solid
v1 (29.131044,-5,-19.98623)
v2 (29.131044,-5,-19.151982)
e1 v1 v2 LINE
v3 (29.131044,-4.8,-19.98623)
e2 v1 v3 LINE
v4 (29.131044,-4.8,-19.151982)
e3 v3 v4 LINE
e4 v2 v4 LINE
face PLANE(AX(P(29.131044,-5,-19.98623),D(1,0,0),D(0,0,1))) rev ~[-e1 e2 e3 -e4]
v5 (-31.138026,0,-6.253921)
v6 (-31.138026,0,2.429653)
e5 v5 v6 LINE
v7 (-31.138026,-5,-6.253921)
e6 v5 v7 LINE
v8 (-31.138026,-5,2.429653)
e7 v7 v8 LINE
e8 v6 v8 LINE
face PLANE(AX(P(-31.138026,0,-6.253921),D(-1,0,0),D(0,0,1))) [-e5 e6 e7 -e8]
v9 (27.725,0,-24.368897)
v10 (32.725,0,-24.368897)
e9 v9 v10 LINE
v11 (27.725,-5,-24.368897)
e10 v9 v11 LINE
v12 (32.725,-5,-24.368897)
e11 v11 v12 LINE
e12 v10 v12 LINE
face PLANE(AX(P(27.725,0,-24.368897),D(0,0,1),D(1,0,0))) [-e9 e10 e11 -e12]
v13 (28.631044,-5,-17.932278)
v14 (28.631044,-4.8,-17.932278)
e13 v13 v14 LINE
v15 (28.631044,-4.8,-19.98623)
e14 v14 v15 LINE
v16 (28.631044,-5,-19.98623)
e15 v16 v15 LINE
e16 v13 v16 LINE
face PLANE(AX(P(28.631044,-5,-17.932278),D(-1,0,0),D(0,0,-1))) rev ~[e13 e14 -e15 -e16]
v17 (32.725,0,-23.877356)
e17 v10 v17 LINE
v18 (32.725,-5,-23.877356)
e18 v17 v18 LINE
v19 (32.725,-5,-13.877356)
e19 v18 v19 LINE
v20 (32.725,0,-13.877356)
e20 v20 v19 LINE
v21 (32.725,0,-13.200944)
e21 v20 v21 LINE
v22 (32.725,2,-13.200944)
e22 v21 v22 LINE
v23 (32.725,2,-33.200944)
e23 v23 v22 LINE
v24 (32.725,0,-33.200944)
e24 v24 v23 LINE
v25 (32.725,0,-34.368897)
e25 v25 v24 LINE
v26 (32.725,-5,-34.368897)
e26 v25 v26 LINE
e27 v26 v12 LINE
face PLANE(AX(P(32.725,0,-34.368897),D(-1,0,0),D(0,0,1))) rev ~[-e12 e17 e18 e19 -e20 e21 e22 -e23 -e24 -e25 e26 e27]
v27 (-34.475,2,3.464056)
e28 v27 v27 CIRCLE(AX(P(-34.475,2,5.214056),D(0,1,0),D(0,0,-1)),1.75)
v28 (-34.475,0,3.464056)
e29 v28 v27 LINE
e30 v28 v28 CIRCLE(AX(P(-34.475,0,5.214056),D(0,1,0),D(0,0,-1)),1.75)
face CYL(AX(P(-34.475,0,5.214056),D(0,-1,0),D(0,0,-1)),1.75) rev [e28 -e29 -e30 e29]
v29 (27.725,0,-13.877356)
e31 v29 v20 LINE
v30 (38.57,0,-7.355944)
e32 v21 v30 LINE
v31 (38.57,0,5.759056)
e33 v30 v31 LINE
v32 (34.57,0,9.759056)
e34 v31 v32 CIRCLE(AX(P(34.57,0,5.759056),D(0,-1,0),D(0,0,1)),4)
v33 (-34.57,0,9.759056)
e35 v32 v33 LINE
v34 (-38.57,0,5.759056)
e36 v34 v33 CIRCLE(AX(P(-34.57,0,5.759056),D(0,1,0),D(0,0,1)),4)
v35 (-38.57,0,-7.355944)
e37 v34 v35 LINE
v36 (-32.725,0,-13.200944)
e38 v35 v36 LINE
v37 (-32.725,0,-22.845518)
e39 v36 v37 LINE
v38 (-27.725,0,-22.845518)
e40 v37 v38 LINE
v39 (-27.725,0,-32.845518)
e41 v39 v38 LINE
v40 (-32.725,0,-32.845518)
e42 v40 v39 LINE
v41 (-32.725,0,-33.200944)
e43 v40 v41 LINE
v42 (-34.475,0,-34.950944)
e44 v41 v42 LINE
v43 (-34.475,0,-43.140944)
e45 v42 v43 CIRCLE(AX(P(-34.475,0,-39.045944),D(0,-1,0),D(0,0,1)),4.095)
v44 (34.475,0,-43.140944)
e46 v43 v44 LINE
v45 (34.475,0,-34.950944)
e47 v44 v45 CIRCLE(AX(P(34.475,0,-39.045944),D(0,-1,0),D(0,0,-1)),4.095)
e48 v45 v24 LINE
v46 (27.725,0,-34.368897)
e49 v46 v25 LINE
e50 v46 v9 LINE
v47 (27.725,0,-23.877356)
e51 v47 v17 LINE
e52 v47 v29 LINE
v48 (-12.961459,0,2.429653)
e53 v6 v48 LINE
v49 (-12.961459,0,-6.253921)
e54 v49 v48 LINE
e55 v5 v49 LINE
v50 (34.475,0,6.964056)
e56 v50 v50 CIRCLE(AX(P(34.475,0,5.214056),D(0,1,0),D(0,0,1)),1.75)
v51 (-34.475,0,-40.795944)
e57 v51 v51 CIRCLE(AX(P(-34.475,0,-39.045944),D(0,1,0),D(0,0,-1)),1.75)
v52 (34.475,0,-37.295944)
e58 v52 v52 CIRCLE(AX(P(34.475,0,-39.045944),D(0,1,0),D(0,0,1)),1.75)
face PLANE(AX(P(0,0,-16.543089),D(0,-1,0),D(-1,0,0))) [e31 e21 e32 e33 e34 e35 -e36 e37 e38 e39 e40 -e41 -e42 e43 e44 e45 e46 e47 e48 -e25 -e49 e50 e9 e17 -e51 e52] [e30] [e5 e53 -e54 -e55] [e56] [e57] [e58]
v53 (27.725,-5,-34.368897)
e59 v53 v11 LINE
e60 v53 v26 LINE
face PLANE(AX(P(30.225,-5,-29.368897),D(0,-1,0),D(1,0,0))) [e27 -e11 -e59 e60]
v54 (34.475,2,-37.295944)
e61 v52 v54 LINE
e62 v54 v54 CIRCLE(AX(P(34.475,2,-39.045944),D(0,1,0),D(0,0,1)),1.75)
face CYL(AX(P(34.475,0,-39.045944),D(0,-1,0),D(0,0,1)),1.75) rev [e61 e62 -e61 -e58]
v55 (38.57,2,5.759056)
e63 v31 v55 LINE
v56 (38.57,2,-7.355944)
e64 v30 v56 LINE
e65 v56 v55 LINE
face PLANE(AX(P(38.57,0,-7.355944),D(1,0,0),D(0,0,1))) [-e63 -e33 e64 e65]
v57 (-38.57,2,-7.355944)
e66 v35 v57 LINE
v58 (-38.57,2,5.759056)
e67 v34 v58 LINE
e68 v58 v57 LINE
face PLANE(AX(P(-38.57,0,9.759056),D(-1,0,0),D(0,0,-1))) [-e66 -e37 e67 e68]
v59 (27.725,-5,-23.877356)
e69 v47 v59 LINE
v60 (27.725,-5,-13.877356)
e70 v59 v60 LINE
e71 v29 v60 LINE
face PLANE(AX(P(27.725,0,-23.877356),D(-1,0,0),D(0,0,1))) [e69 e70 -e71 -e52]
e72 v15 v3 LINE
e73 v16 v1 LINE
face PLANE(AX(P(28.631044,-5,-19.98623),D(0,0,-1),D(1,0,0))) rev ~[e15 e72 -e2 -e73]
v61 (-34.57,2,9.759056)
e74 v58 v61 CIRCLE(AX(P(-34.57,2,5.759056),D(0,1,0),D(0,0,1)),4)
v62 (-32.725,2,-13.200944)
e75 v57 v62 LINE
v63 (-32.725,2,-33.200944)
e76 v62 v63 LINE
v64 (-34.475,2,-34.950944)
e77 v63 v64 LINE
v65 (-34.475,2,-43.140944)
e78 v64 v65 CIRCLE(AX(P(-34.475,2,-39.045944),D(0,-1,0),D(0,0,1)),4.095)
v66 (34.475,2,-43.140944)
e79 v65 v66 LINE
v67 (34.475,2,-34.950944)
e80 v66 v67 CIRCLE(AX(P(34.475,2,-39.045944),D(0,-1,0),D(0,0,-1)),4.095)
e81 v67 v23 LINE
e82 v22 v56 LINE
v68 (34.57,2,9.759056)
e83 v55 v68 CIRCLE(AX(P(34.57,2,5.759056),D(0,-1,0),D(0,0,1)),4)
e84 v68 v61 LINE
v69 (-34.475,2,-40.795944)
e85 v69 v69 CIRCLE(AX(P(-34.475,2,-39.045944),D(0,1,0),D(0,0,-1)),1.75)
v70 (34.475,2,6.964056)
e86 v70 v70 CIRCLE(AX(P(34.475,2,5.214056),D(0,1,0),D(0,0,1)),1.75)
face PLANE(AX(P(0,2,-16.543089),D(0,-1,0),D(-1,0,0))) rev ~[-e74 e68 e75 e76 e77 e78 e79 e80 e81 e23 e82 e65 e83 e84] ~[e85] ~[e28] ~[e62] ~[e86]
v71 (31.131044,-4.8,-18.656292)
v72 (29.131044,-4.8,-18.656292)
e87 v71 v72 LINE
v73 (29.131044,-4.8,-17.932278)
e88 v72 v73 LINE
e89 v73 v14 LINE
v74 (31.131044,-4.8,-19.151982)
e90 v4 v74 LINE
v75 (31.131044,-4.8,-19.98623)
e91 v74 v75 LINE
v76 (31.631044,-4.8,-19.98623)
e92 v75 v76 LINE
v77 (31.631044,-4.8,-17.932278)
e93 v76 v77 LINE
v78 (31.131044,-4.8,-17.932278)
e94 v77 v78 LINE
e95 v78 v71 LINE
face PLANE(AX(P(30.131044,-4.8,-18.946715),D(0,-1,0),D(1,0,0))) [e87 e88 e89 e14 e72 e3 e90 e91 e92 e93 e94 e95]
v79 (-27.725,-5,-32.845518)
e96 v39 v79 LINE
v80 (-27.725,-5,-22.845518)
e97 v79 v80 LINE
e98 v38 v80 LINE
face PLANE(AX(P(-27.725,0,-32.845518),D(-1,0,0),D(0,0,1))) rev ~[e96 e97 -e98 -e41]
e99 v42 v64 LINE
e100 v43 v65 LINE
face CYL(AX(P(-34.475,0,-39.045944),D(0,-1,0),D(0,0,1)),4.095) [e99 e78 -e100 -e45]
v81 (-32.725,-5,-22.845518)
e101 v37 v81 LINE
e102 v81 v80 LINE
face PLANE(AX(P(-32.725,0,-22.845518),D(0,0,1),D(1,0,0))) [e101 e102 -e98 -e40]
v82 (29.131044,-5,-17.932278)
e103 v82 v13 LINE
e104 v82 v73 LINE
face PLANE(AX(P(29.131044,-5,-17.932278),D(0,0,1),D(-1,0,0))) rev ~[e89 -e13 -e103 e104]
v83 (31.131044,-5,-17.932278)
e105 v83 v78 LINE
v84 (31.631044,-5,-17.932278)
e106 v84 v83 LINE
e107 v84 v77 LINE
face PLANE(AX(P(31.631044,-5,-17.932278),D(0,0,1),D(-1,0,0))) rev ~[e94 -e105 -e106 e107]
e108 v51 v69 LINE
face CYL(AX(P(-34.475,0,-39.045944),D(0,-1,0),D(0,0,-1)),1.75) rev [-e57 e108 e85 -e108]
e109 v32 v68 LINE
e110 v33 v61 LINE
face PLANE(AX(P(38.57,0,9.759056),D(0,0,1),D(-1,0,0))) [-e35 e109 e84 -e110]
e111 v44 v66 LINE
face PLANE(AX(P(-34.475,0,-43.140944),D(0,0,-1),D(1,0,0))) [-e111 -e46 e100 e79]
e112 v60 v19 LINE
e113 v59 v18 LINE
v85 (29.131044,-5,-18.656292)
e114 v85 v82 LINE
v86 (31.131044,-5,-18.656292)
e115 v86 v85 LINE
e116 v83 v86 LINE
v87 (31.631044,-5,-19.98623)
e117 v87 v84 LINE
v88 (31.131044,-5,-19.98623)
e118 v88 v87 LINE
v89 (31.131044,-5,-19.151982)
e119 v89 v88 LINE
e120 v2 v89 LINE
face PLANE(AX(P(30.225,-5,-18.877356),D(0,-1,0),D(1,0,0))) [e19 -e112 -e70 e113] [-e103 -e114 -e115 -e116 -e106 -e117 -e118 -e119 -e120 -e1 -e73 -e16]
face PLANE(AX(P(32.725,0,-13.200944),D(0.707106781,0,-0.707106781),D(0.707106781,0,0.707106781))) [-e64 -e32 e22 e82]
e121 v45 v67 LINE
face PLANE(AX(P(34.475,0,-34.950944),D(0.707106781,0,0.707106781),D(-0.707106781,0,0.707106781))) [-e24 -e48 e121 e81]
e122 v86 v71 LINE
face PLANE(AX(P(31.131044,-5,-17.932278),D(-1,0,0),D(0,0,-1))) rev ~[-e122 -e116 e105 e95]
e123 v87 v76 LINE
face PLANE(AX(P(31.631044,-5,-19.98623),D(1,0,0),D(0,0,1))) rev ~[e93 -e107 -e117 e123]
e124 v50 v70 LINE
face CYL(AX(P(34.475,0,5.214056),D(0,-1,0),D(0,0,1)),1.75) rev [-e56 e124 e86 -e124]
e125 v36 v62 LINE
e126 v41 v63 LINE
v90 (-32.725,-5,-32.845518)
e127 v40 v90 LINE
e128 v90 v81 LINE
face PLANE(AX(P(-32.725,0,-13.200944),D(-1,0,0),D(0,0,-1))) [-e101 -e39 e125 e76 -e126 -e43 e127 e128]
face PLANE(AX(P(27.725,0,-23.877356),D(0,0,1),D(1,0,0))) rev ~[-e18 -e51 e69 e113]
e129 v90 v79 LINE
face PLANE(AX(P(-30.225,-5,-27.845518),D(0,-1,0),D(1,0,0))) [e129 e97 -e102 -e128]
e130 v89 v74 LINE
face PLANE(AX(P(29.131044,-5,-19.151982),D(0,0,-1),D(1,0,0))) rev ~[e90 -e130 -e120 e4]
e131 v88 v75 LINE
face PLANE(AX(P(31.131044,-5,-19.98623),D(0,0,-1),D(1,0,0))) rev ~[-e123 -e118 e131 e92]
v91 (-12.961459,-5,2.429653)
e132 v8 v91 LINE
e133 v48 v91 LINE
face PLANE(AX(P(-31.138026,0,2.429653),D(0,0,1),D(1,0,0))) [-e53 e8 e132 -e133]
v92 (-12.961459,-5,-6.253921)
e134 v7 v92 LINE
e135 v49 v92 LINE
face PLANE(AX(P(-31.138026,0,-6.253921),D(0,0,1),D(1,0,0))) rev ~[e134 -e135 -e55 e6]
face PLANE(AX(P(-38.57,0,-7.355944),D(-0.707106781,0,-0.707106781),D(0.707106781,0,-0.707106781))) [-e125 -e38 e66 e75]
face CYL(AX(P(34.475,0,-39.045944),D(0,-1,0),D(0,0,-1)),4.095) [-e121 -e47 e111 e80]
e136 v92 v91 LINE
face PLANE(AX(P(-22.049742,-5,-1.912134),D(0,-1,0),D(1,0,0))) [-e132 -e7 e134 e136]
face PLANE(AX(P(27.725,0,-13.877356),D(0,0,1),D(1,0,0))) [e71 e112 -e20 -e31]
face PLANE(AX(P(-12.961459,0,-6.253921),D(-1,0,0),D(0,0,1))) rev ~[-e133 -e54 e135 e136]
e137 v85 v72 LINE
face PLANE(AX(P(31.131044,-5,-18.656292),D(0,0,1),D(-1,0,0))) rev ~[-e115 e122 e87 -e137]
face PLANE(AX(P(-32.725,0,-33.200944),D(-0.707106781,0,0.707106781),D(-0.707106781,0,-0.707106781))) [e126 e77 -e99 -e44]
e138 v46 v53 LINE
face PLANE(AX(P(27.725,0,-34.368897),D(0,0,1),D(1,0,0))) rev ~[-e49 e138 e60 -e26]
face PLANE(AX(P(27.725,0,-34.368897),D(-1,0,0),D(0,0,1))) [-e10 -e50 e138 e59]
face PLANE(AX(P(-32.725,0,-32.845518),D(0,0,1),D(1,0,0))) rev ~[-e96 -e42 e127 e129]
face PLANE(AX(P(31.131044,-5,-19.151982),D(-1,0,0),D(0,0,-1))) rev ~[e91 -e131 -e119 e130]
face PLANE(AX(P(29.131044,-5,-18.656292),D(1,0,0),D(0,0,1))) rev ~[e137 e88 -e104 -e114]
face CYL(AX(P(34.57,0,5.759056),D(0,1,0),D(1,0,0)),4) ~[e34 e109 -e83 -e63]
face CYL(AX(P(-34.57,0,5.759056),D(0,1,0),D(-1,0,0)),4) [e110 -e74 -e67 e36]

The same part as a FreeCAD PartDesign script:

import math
import FreeCAD as App
import Part
import Sketcher

V = App.Vector


def edges_at(feature, points):
    """Names of the edges that pass closest to the given points."""
    edges = feature.Shape.Edges
    near = lambda p: min(range(len(edges)), key=lambda i: edges[i].distToShape(Part.Vertex(*p))[0])
    return sorted({f"Edge{near(p) + 1}" for p in points})

doc = App.newDocument("Part")
body = doc.addObject("PartDesign::Body", "Body")

# Sketch on XZ plane
sketch1 = body.newObject("Sketcher::SketchObject", "Sketch")
sketch1.AttachmentSupport = (doc.getObject("XZ_Plane"), [""])
sketch1.MapMode = "FlatFace"
sketch1.addGeometry([
    Part.LineSegment(V(34.475, -43.140944, 0), V(-34.475, -43.140944, 0)),  # 0
    Part.ArcOfCircle(Part.Circle(V(-34.475, -39.045944, 0), V(0, 0, 1), 4.095), math.radians(90), math.radians(270)),  # 1
    Part.LineSegment(V(-34.475, -34.950944, 0), V(-32.725, -33.200944, 0)),  # 2
    Part.LineSegment(V(-32.725, -33.200944, 0), V(-32.725, -13.200944, 0)),  # 3
    Part.LineSegment(V(-32.725, -13.200944, 0), V(-38.57, -7.355944, 0)),  # 4
    Part.LineSegment(V(-38.57, -7.355944, 0), V(-38.57, 9.759056, 0)),  # 5
    Part.LineSegment(V(-38.57, 9.759056, 0), V(38.57, 9.759056, 0)),  # 6
    Part.LineSegment(V(38.57, 9.759056, 0), V(38.57, -7.355944, 0)),  # 7
    Part.LineSegment(V(38.57, -7.355944, 0), V(32.725, -13.200944, 0)),  # 8
    Part.LineSegment(V(32.725, -13.200944, 0), V(32.725, -33.200944, 0)),  # 9
    Part.LineSegment(V(32.725, -33.200944, 0), V(34.475, -34.950944, 0)),  # 10
    Part.ArcOfCircle(Part.Circle(V(34.475, -39.045944, 0), V(0, 0, 1), 4.095), math.radians(-90), math.radians(90)),  # 11
    Part.Circle(V(34.475, 5.214056, 0), V(0, 0, 1), 1.75),  # 12
    Part.Circle(V(-34.475, 5.214056, 0), V(0, 0, 1), 1.75),  # 13
    Part.Circle(V(34.475, -39.045944, 0), V(0, 0, 1), 1.75),  # 14
    Part.Circle(V(-34.475, -39.045944, 0), V(0, 0, 1), 1.75),  # 15
], False)
sketch1.addConstraint([
    Sketcher.Constraint("Tangent", 0, 2, 1, 2),
    Sketcher.Constraint("Coincident", 1, 1, 2, 1),
    Sketcher.Constraint("Coincident", 2, 2, 3, 1),
    Sketcher.Constraint("Coincident", 3, 2, 4, 1),
    Sketcher.Constraint("Coincident", 4, 2, 5, 1),
    Sketcher.Constraint("Coincident", 5, 2, 6, 1),
    Sketcher.Constraint("Coincident", 6, 2, 7, 1),
    Sketcher.Constraint("Coincident", 7, 2, 8, 1),
    Sketcher.Constraint("Coincident", 8, 2, 9, 1),
    Sketcher.Constraint("Coincident", 9, 2, 10, 1),
    Sketcher.Constraint("Coincident", 10, 2, 11, 2),
    Sketcher.Constraint("Tangent", 11, 1, 0, 1),
    Sketcher.Constraint("Horizontal", 0),
    Sketcher.Constraint("Vertical", 3),
    Sketcher.Constraint("Vertical", 5),
    Sketcher.Constraint("Horizontal", 6),
    Sketcher.Constraint("Vertical", 7),
    Sketcher.Constraint("Vertical", 9),
    Sketcher.Constraint("Coincident", 14, 3, 11, 3),
    Sketcher.Constraint("Coincident", 15, 3, 1, 3),
    Sketcher.Constraint("Equal", 1, 11),
    Sketcher.Constraint("Equal", 12, 13),
    Sketcher.Constraint("Equal", 13, 14),
    Sketcher.Constraint("Equal", 14, 15),
    Sketcher.Constraint("Symmetric", 12, 3, 13, 3, -2),
    Sketcher.Constraint("Symmetric", 4, 2, 7, 2, -2),
    Sketcher.Constraint("Symmetric", 3, 2, 8, 2, -2),
    Sketcher.Constraint("Perpendicular", 2, 4),
    Sketcher.Constraint("Perpendicular", 4, 8),
    Sketcher.Constraint("Perpendicular", 8, 10),
    Sketcher.Constraint("Horizontal", 2, 2, 9, 2),
    Sketcher.Constraint("Vertical", 11, 3, 12, 3),
    Sketcher.Constraint("Vertical", 1, 3, 13, 3),
    Sketcher.Constraint("Vertical", 0, 2, 1, 1),
    Sketcher.Constraint("Diameter", 12, 3.5),
    Sketcher.Constraint("DistanceY", 3, 1, 3, 2, 20.0),
    Sketcher.Constraint("Radius", 1, 4.095),
    Sketcher.Constraint("DistanceX", 0, 2, 0, 1, 68.95),
    Sketcher.Constraint("DistanceX", 6, 1, 6, 2, 77.14),
    Sketcher.Constraint("DistanceY", 5, 1, 5, 2, 17.115),
    Sketcher.Constraint("DistanceY", 11, 3, 12, 3, 44.26),
    Sketcher.Constraint("DistanceX", 1, 1, 2, 2, 1.75),
    Sketcher.Constraint("DistanceY", 1, 3, -1, 1, 39.045944),
])
pad1 = body.newObject("PartDesign::Pad", "Pad")
pad1.Profile = sketch1
pad1.Length = 2
pad1.Reversed = True
doc.recompute()

fillet = body.newObject("PartDesign::Fillet", "Fillet")
fillet.Base = (pad1, edges_at(pad1, [(38.57, 1, 9.759), (-38.57, 1, 9.759)]))
fillet.Radius = 4

# Sketch on XZ plane
sketch2 = body.newObject("Sketcher::SketchObject", "Sketch001")
sketch2.AttachmentSupport = (doc.getObject("XZ_Plane"), [""])
sketch2.MapMode = "FlatFace"
sketch2.addGeometry([
    Part.LineSegment(V(27.725, -24.368897, 0), V(27.725, -34.368897, 0)),  # 0
    Part.LineSegment(V(27.725, -34.368897, 0), V(32.725, -34.368897, 0)),  # 1
    Part.LineSegment(V(32.725, -34.368897, 0), V(32.725, -24.368897, 0)),  # 2
    Part.LineSegment(V(32.725, -24.368897, 0), V(27.725, -24.368897, 0)),  # 3
    Part.LineSegment(V(-32.725, -22.845518, 0), V(-32.725, -32.845518, 0)),  # 4
    Part.LineSegment(V(-32.725, -32.845518, 0), V(-27.725, -32.845518, 0)),  # 5
    Part.LineSegment(V(-27.725, -32.845518, 0), V(-27.725, -22.845518, 0)),  # 6
    Part.LineSegment(V(-27.725, -22.845518, 0), V(-32.725, -22.845518, 0)),  # 7
    Part.LineSegment(V(27.725, -13.877356, 0), V(27.725, -23.877356, 0)),  # 8
    Part.LineSegment(V(27.725, -23.877356, 0), V(32.725, -23.877356, 0)),  # 9
    Part.LineSegment(V(32.725, -23.877356, 0), V(32.725, -13.877356, 0)),  # 10
    Part.LineSegment(V(32.725, -13.877356, 0), V(27.725, -13.877356, 0)),  # 11
], False)
sketch2.addConstraint([
    Sketcher.Constraint("Coincident", 0, 2, 1, 1),
    Sketcher.Constraint("Coincident", 1, 2, 2, 1),
    Sketcher.Constraint("Coincident", 2, 2, 3, 1),
    Sketcher.Constraint("Coincident", 3, 2, 0, 1),
    Sketcher.Constraint("Coincident", 4, 2, 5, 1),
    Sketcher.Constraint("Coincident", 5, 2, 6, 1),
    Sketcher.Constraint("Coincident", 6, 2, 7, 1),
    Sketcher.Constraint("Coincident", 7, 2, 4, 1),
    Sketcher.Constraint("Coincident", 8, 2, 9, 1),
    Sketcher.Constraint("Coincident", 9, 2, 10, 1),
    Sketcher.Constraint("Coincident", 10, 2, 11, 1),
    Sketcher.Constraint("Coincident", 11, 2, 8, 1),
    Sketcher.Constraint("Vertical", 0),
    Sketcher.Constraint("Horizontal", 1),
    Sketcher.Constraint("Vertical", 2),
    Sketcher.Constraint("Horizontal", 3),
    Sketcher.Constraint("Vertical", 4),
    Sketcher.Constraint("Horizontal", 5),
    Sketcher.Constraint("Vertical", 6),
    Sketcher.Constraint("Horizontal", 7),
    Sketcher.Constraint("Vertical", 8),
    Sketcher.Constraint("Horizontal", 9),
    Sketcher.Constraint("Vertical", 10),
    Sketcher.Constraint("Horizontal", 11),
    Sketcher.Constraint("Vertical", 3, 2, 8, 2),
    Sketcher.Constraint("Vertical", 2, 2, 9, 2),
    Sketcher.Constraint("Equal", 3, 5),
    Sketcher.Constraint("Equal", 2, 4),
    Sketcher.Constraint("Equal", 6, 8),
    Sketcher.Constraint("DistanceX", 1, 1, 1, 2, 5.0),
    Sketcher.Constraint("DistanceY", 0, 2, 0, 1, 10.0),
    Sketcher.Constraint("DistanceX", 4, 2, 0, 2, 60.45),
    Sketcher.Constraint("DistanceX", -1, 1, 0, 2, 27.725),
    Sketcher.Constraint("DistanceY", 4, 2, -1, 1, 32.845518),
    Sketcher.Constraint("DistanceY", 0, 2, 4, 2, 1.523378),
    Sketcher.Constraint("DistanceY", 3, 2, 8, 2, 0.49154),
])
pad2 = body.newObject("PartDesign::Pad", "Pad001")
pad2.Profile = sketch2
pad2.Length = 5

# Sketch on XZ plane
sketch3 = body.newObject("Sketcher::SketchObject", "Sketch002")
sketch3.AttachmentSupport = (doc.getObject("XZ_Plane"), [""])
sketch3.MapMode = "FlatFace"
sketch3.AttachmentOffset = App.Placement(V(0, 0, 5), App.Rotation())
sketch3.addGeometry([
    Part.LineSegment(V(31.631044, -19.98623, 0), V(31.631044, -17.932278, 0)),  # 0
    Part.LineSegment(V(31.631044, -17.932278, 0), V(31.131044, -17.932278, 0)),  # 1
    Part.LineSegment(V(31.131044, -17.932278, 0), V(31.131044, -18.656292, 0)),  # 2
    Part.LineSegment(V(31.131044, -18.656292, 0), V(29.131044, -18.656292, 0)),  # 3
    Part.LineSegment(V(29.131044, -18.656292, 0), V(29.131044, -17.932278, 0)),  # 4
    Part.LineSegment(V(29.131044, -17.932278, 0), V(28.631044, -17.932278, 0)),  # 5
    Part.LineSegment(V(28.631044, -17.932278, 0), V(28.631044, -19.98623, 0)),  # 6
    Part.LineSegment(V(28.631044, -19.98623, 0), V(29.131044, -19.98623, 0)),  # 7
    Part.LineSegment(V(29.131044, -19.98623, 0), V(29.131044, -19.151982, 0)),  # 8
    Part.LineSegment(V(29.131044, -19.151982, 0), V(31.131044, -19.151982, 0)),  # 9
    Part.LineSegment(V(31.131044, -19.151982, 0), V(31.131044, -19.98623, 0)),  # 10
    Part.LineSegment(V(31.131044, -19.98623, 0), V(31.631044, -19.98623, 0)),  # 11
], False)
sketch3.addConstraint([
    Sketcher.Constraint("Coincident", 0, 2, 1, 1),
    Sketcher.Constraint("Coincident", 1, 2, 2, 1),
    Sketcher.Constraint("Coincident", 2, 2, 3, 1),
    Sketcher.Constraint("Coincident", 3, 2, 4, 1),
    Sketcher.Constraint("Coincident", 4, 2, 5, 1),
    Sketcher.Constraint("Coincident", 5, 2, 6, 1),
    Sketcher.Constraint("Coincident", 6, 2, 7, 1),
    Sketcher.Constraint("Coincident", 7, 2, 8, 1),
    Sketcher.Constraint("Coincident", 8, 2, 9, 1),
    Sketcher.Constraint("Coincident", 9, 2, 10, 1),
    Sketcher.Constraint("Coincident", 10, 2, 11, 1),
    Sketcher.Constraint("Coincident", 11, 2, 0, 1),
    Sketcher.Constraint("Vertical", 0),
    Sketcher.Constraint("Horizontal", 1),
    Sketcher.Constraint("Vertical", 2),
    Sketcher.Constraint("Horizontal", 3),
    Sketcher.Constraint("Vertical", 4),
    Sketcher.Constraint("Horizontal", 5),
    Sketcher.Constraint("Vertical", 6),
    Sketcher.Constraint("Horizontal", 7),
    Sketcher.Constraint("Vertical", 8),
    Sketcher.Constraint("Horizontal", 9),
    Sketcher.Constraint("Vertical", 10),
    Sketcher.Constraint("Horizontal", 11),
    Sketcher.Constraint("Horizontal", 1, 2, 4, 2),
    Sketcher.Constraint("Horizontal", 7, 2, 10, 2),
    Sketcher.Constraint("Vertical", 4, 2, 7, 2),
    Sketcher.Constraint("Vertical", 2, 2, 9, 2),
    Sketcher.Constraint("Equal", 1, 5),
    Sketcher.Constraint("DistanceX", 3, 2, 3, 1, 2.0),
    Sketcher.Constraint("DistanceX", 1, 2, 1, 1, 0.5),
    Sketcher.Constraint("DistanceY", 8, 1, 8, 2, 0.834249),
    Sketcher.Constraint("DistanceY", 0, 1, 0, 2, 2.053953),
    Sketcher.Constraint("DistanceY", 2, 2, 2, 1, 0.724014),
    Sketcher.Constraint("DistanceY", 2, 2, -1, 1, 18.656292),
    Sketcher.Constraint("DistanceX", -1, 1, 0, 2, 31.631044),
])
pocket1 = body.newObject("PartDesign::Pocket", "Pocket")
pocket1.Profile = sketch3
pocket1.Length = 0.2

# Sketch on XZ plane
sketch4 = body.newObject("Sketcher::SketchObject", "Sketch003")
sketch4.AttachmentSupport = (doc.getObject("XZ_Plane"), [""])
sketch4.MapMode = "FlatFace"
sketch4.addGeometry([
    Part.LineSegment(V(-31.138026, 2.429653, 0), V(-31.138026, -6.253921, 0)),
    Part.LineSegment(V(-31.138026, -6.253921, 0), V(-12.961459, -6.253921, 0)),
    Part.LineSegment(V(-12.961459, -6.253921, 0), V(-12.961459, 2.429653, 0)),
    Part.LineSegment(V(-12.961459, 2.429653, 0), V(-31.138026, 2.429653, 0)),
], False)
sketch4.addConstraint([
    Sketcher.Constraint("Coincident", 0, 2, 1, 1),
    Sketcher.Constraint("Coincident", 1, 2, 2, 1),
    Sketcher.Constraint("Coincident", 2, 2, 3, 1),
    Sketcher.Constraint("Coincident", 3, 2, 0, 1),
    Sketcher.Constraint("Vertical", 0),
    Sketcher.Constraint("Horizontal", 1),
    Sketcher.Constraint("Vertical", 2),
    Sketcher.Constraint("Horizontal", 3),
    Sketcher.Constraint("DistanceX", 1, 1, 1, 2, 18.176567),
    Sketcher.Constraint("DistanceY", 0, 2, 0, 1, 8.683575),
    Sketcher.Constraint("DistanceY", 0, 2, -1, 1, 6.253921),
    Sketcher.Constraint("DistanceX", 1, 2, -1, 1, 12.961459),
])
pad3 = body.newObject("PartDesign::Pad", "Pad002")
pad3.Profile = sketch4
pad3.Length = 5

doc.recompute()
